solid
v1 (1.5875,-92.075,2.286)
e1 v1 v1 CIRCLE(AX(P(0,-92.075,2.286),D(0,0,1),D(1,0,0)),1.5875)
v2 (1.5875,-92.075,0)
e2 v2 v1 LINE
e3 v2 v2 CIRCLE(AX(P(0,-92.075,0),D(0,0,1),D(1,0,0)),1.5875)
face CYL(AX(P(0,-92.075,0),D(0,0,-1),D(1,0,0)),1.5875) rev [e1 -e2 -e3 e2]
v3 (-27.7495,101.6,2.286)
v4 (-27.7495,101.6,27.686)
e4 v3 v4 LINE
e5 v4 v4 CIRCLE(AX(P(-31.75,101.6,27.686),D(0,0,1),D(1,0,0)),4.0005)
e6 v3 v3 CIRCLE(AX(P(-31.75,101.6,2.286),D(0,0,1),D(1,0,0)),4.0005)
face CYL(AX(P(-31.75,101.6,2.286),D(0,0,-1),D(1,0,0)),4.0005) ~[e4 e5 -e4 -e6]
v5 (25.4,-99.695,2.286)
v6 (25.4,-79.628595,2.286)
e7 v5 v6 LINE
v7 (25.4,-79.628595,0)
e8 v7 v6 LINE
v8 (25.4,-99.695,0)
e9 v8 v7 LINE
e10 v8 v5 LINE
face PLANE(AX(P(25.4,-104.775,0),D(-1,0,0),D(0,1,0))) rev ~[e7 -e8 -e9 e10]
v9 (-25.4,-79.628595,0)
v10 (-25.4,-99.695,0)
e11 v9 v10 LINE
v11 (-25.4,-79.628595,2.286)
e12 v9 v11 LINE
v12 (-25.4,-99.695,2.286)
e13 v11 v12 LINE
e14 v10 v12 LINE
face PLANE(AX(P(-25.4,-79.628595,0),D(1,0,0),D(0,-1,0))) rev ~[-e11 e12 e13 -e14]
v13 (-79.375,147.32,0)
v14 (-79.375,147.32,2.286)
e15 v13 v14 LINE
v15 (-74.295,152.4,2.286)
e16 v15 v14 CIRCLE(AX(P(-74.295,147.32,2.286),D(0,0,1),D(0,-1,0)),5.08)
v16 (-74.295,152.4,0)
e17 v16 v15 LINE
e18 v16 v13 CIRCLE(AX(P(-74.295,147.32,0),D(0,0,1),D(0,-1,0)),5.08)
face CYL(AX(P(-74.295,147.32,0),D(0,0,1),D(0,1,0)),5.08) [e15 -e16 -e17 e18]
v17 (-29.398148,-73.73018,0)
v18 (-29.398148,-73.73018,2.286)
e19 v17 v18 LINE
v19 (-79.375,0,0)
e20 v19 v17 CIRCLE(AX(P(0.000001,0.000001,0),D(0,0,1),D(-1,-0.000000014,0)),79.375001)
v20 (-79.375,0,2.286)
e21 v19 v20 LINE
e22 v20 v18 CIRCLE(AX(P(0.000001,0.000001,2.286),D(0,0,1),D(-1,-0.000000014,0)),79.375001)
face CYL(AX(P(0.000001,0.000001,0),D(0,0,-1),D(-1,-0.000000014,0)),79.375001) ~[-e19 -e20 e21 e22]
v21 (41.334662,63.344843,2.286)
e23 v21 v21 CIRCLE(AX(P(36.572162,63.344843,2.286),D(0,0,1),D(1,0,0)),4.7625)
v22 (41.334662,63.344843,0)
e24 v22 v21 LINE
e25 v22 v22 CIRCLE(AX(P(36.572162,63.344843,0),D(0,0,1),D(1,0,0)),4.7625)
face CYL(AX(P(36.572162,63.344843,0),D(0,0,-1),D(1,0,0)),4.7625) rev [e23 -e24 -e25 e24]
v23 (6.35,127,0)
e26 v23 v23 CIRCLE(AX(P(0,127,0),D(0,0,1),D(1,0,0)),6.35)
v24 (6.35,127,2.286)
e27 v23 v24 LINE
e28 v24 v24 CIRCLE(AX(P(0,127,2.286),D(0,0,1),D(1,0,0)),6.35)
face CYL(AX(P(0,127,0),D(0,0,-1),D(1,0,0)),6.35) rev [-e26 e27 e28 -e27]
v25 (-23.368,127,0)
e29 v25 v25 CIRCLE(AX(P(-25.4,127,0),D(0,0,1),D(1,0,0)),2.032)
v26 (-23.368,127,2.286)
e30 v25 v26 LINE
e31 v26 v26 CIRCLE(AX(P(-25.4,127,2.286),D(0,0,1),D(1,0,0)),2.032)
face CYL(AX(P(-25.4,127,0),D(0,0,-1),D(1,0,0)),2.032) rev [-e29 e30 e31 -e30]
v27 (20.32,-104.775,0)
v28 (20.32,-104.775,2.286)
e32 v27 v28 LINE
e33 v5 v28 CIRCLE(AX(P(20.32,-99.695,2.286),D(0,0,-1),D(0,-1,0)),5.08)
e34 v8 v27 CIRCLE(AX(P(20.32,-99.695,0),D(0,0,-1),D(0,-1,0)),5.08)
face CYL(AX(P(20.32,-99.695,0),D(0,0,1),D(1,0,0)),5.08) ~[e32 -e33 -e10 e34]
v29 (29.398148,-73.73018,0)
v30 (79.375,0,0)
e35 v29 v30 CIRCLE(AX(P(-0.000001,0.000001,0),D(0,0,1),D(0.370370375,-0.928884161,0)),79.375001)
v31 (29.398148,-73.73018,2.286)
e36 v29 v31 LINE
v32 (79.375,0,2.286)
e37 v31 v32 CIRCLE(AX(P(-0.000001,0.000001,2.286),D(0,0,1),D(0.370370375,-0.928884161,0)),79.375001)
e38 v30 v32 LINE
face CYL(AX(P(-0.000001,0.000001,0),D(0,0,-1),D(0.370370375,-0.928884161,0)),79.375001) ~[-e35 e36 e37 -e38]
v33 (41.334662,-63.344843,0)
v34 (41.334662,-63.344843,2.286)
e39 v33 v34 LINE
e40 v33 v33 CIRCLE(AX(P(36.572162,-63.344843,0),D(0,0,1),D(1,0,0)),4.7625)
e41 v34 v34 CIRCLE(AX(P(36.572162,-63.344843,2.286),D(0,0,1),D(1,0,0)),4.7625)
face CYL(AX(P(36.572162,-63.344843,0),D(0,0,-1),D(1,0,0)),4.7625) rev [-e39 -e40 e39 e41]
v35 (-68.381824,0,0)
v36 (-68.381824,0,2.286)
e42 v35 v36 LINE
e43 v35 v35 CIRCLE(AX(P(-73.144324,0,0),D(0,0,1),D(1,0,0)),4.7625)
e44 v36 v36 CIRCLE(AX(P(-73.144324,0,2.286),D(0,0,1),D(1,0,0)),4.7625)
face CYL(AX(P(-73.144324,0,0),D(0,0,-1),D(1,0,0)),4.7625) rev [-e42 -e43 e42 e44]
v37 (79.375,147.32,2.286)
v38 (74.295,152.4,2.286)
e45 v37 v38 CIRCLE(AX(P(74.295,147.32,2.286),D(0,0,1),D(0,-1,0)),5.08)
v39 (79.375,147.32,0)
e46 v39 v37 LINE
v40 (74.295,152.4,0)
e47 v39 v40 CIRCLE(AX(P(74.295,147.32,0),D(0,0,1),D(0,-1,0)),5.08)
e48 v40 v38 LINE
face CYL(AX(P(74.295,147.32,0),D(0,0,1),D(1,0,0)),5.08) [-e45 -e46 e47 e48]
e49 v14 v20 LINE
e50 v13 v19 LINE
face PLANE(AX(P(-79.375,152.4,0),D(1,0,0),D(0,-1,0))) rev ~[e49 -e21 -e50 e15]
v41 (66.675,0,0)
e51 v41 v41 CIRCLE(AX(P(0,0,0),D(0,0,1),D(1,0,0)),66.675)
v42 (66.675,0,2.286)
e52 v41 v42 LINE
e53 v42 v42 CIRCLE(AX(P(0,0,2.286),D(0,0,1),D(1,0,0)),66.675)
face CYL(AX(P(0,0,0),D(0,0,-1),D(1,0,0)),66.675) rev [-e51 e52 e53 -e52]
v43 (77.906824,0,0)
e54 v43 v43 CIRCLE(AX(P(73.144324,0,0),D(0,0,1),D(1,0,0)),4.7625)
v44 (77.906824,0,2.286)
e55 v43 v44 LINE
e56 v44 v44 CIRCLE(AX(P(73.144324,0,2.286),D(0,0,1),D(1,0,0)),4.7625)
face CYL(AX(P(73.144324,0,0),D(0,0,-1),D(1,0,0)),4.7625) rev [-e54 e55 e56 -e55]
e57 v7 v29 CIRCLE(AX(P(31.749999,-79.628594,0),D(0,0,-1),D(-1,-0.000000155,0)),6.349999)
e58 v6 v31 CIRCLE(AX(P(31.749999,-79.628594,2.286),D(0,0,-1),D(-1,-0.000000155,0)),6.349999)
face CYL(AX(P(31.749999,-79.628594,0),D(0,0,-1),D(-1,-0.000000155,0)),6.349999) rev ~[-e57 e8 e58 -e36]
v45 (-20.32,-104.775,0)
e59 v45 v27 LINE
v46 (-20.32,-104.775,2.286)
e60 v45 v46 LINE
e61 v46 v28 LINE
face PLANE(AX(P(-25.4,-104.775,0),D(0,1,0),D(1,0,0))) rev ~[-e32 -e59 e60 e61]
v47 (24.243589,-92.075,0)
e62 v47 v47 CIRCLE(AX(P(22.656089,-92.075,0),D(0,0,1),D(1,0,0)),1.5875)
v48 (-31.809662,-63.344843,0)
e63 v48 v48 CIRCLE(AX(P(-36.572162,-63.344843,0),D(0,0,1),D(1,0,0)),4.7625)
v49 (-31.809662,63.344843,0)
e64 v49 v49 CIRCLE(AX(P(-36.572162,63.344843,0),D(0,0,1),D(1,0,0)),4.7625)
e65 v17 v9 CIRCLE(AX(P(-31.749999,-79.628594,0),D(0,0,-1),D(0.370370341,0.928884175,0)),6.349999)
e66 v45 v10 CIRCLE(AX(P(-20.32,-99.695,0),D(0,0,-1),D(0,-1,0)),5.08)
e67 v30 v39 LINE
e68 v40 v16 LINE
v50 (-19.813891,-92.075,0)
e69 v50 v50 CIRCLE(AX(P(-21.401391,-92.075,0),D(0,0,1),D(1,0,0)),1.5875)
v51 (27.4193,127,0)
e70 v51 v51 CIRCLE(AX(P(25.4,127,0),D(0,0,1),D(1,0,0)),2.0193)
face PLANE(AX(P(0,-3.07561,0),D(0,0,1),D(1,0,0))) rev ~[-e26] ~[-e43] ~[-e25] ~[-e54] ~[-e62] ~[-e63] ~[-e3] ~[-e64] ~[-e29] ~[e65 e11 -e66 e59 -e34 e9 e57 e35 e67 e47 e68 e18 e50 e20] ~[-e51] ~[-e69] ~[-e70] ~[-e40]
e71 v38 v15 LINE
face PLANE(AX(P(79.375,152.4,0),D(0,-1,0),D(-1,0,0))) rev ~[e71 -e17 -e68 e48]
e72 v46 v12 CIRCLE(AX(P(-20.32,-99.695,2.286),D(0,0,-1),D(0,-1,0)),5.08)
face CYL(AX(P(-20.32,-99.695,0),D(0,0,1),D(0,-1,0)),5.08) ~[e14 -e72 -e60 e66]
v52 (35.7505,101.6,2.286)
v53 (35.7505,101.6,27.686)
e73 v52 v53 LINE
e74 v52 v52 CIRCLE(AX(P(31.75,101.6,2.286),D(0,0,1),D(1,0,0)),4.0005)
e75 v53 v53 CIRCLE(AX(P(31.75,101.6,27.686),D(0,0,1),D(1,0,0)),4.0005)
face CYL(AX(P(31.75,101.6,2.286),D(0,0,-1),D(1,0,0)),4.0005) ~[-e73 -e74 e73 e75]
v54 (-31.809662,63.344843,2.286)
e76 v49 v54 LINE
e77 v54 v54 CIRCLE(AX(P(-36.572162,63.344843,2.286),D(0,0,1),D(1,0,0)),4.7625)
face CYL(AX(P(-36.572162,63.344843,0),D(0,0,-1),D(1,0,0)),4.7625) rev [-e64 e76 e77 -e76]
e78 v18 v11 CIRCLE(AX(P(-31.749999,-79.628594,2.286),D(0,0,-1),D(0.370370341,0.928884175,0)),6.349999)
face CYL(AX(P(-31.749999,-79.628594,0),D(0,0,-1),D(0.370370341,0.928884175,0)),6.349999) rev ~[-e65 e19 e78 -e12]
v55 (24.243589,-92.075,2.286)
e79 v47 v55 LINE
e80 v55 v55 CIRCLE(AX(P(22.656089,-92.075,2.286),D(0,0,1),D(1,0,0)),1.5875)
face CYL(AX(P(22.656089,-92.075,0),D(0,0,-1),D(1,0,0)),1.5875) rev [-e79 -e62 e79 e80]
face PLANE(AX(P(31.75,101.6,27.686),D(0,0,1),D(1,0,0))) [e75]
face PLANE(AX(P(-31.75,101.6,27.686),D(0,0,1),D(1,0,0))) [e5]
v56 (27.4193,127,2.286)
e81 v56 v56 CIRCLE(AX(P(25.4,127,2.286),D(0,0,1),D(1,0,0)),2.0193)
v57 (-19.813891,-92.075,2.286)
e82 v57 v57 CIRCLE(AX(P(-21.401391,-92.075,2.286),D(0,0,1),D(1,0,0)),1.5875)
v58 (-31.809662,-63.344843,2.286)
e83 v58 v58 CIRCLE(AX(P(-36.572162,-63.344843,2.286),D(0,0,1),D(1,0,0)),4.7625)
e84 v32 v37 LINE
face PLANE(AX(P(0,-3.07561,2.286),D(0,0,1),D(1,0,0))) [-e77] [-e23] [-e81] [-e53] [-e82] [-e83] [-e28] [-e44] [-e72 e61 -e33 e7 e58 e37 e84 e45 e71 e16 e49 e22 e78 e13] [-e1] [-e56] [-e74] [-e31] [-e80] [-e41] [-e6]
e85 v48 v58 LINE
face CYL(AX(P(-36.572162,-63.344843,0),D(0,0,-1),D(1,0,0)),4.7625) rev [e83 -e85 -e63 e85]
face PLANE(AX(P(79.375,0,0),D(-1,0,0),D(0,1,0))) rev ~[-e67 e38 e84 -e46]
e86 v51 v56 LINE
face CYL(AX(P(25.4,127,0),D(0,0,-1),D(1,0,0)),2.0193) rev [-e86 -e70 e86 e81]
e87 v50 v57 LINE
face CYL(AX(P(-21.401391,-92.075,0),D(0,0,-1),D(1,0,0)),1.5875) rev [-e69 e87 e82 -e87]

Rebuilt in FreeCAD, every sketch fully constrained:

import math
import FreeCAD as App
import Part
import Sketcher

V = App.Vector
Q = App.Units.Quantity


def edges_at(feature, points):
    """Names of the edges that pass closest to the given points."""
    edges = feature.Shape.Edges
    near = lambda p: min(range(len(edges)), key=lambda i: edges[i].distToShape(Part.Vertex(*p))[0])
    return sorted({f"Edge{near(p) + 1}" for p in points})

doc = App.newDocument("Part")
params = doc.addObject("Spreadsheet::Sheet", "Params")
for row, (alias, value) in enumerate([
    ("sketch1_diameter", "0.5 in"),
    ("sketch1_diameter2", "5.25 in"),
    ("sketch1_diameter3", "0.16 in"),
    ("sketch1_width", "2 in"),
    ("sketch1_height", "6 in"),
    ("pad1_length", "0.09 in"),
    ("fillet_radius", "0.2 in"),
    ("fillet2_radius", "0.2 in"),
    ("sketch2_diameter", "0.315 in"),
    ("pad2_length", "1 in"),
], start=1):
    params.set(f"A{row}", alias)
    params.set(f"B{row}", "=" + value)
    params.setAlias(f"B{row}", alias)

body = doc.addObject("PartDesign::Body", "Body")

# Sketch on XY plane
sketch1 = body.newObject("Sketcher::SketchObject", "Sketch")
sketch1.AttachmentSupport = (doc.getObject("XY_Plane"), [""])
sketch1.MapMode = "FlatFace"
sketch1.addGeometry([
    Part.ArcOfCircle(Part.Circle(V(0, 0, 0), V(0, 0, 1), 79.4), math.radians(-68), math.radians(0)),  # 0
    Part.LineSegment(V(79.4, 0, 0), V(79.4, 152.4, 0)),  # 1
    Part.LineSegment(V(79.4, 152.4, 0), V(-79.4, 152.4, 0)),  # 2
    Part.LineSegment(V(-79.4, 152.4, 0), V(-79.4, 0, 0)),  # 3
    Part.ArcOfCircle(Part.Circle(V(0, 0, 0), V(0, 0, 1), 79.4), math.radians(-180), math.radians(-112)),  # 4
    Part.ArcOfCircle(Part.Circle(V(-31.7, -79.6, 0), V(0, 0, 1), 6.3), math.radians(0), math.radians(68)),  # 5
    Part.LineSegment(V(-25.4, -79.6, 0), V(-25.4, -104.8, 0)),  # 6
    Part.LineSegment(V(-25.4, -104.8, 0), V(25.4, -104.8, 0)),  # 7
    Part.LineSegment(V(25.4, -104.8, 0), V(25.4, -79.6, 0)),  # 8
    Part.ArcOfCircle(Part.Circle(V(31.7, -79.6, 0), V(0, 0, 1), 6.3), math.radians(112), math.radians(180)),  # 9
    Part.Circle(V(-21.4, -92.1, 0), V(0, 0, 1), 1.6),  # 10
    Part.Circle(V(-36.6, -63.3, 0), V(0, 0, 1), 4.8),  # 11
    Part.Circle(V(-73.1, 0, 0), V(0, 0, 1), 4.8),  # 12
    Part.Circle(V(0, -92.1, 0), V(0, 0, 1), 1.6),  # 13
    Part.Circle(V(22.7, -92.1, 0), V(0, 0, 1), 1.6),  # 14
    Part.Circle(V(36.6, -63.3, 0), V(0, 0, 1), 4.8),  # 15
    Part.Circle(V(0, 0, 0), V(0, 0, 1), 66.7),  # 16
    Part.Circle(V(73.1, 0, 0), V(0, 0, 1), 4.8),  # 17
    Part.Circle(V(-36.6, 63.3, 0), V(0, 0, 1), 4.8),  # 18
    Part.Circle(V(-25.4, 127, 0), V(0, 0, 1), 2),  # 19
    Part.Circle(V(36.6, 63.3, 0), V(0, 0, 1), 4.8),  # 20
    Part.Circle(V(0, 127, 0), V(0, 0, 1), 6.3),  # 21
    Part.Circle(V(25.4, 127, 0), V(0, 0, 1), 2),  # 22
], False)
sketch1.addConstraint([
    Sketcher.Constraint("Tangent", 0, 2, 1, 1),
    Sketcher.Constraint("Coincident", 1, 2, 2, 1),
    Sketcher.Constraint("Coincident", 2, 2, 3, 1),
    Sketcher.Constraint("Tangent", 3, 2, 4, 1),
    Sketcher.Constraint("Tangent", 4, 2, 5, 2),
    Sketcher.Constraint("Tangent", 5, 1, 6, 1),
    Sketcher.Constraint("Coincident", 6, 2, 7, 1),
    Sketcher.Constraint("Coincident", 7, 2, 8, 1),
    Sketcher.Constraint("Tangent", 8, 2, 9, 2),
    Sketcher.Constraint("Tangent", 9, 1, 0, 1),
    Sketcher.Constraint("Vertical", 1),
    Sketcher.Constraint("Horizontal", 2),
    Sketcher.Constraint("Vertical", 3),
    Sketcher.Constraint("Vertical", 6),
    Sketcher.Constraint("Horizontal", 7),
    Sketcher.Constraint("Vertical", 8),
    Sketcher.Constraint("Coincident", 0, 3, -1, 1),
    Sketcher.Constraint("Coincident", 4, 3, -1, 1),
    Sketcher.Constraint("Coincident", 16, 3, -1, 1),
    Sketcher.Constraint("Equal", 0, 4),
    Sketcher.Constraint("Equal", 5, 9),
    Sketcher.Constraint("Equal", 11, 12),
    Sketcher.Constraint("Equal", 10, 13),
    Sketcher.Constraint("Equal", 13, 14),
    Sketcher.Constraint("Equal", 12, 15),
    Sketcher.Constraint("Equal", 15, 17),
    Sketcher.Constraint("Equal", 17, 18),
    Sketcher.Constraint("Equal", 18, 20),
    Sketcher.Constraint("Equal", 9, 21),
    Sketcher.Constraint("Symmetric", 12, 3, 17, 3, -1, 1),
    Sketcher.Constraint("Symmetric", 15, 3, 18, 3, -1, 1),
    Sketcher.Constraint("Symmetric", 11, 3, 20, 3, -1, 1),
    Sketcher.Constraint("Symmetric", 11, 3, 15, 3, -2),
    Sketcher.Constraint("Symmetric", 19, 3, 22, 3, -2),
    Sketcher.Constraint("PointOnObject", 12, 3, -1),
    Sketcher.Constraint("PointOnObject", 13, 3, -2),
    Sketcher.Constraint("PointOnObject", 21, 3, -2),
    Sketcher.Constraint("Horizontal", 5, 3, 9, 3),
    Sketcher.Constraint("Horizontal", 10, 3, 13, 3),
    Sketcher.Constraint("Horizontal", 13, 3, 14, 3),
    Sketcher.Constraint("Horizontal", 19, 3, 21, 3),
    Sketcher.Constraint("Vertical", 19, 3, 5, 1),
    Sketcher.Constraint("Diameter", 21, Q("0.5 in")),
    Sketcher.Constraint("Diameter", 16, Q("5.25 in")),
    Sketcher.Constraint("Diameter", 19, Q("0.16 in")),
    Sketcher.Constraint("DistanceX", 7, 1, 7, 2, Q("2 in")),
    Sketcher.Constraint("DistanceY", 1, 1, 1, 2, Q("6 in")),
    Sketcher.Constraint("Diameter", 10, Q("0.125 in")),
    Sketcher.Constraint("Diameter", 11, Q("0.375 in")),
    Sketcher.Constraint("Diameter", 22, Q("0.159 in")),
    Sketcher.Constraint("DistanceY", -1, 1, 19, 3, Q("5 in")),
    Sketcher.Constraint("Radius", 0, Q("3.125 in")),
    Sketcher.Constraint("DistanceY", 6, 2, 10, 3, Q("0.5 in")),
    Sketcher.Constraint("DistanceY", 10, 3, -1, 1, Q("3.625 in")),
    Sketcher.Constraint("DistanceX", 10, 3, -1, 1, 21.401391),
    Sketcher.Constraint("DistanceX", -1, 1, 14, 3, 22.656089),
    Sketcher.Constraint("DistanceY", 5, 3, 11, 3, 16.283751),
    Sketcher.Constraint("DistanceX", 11, 3, 10, 3, 15.170771),
    Sketcher.Constraint("DistanceX", 12, 3, -1, 1, 73.144324),
])
sketch1.setExpression("Constraints[42]", "Params.sketch1_diameter")
sketch1.setExpression("Constraints[43]", "Params.sketch1_diameter2")
sketch1.setExpression("Constraints[44]", "Params.sketch1_diameter3")
sketch1.setExpression("Constraints[45]", "Params.sketch1_width")
sketch1.setExpression("Constraints[46]", "Params.sketch1_height")
pad1 = body.newObject("PartDesign::Pad", "Pad")
pad1.Profile = sketch1
pad1.setExpression("Length", "Params.pad1_length")
doc.recompute()

fillet = body.newObject("PartDesign::Fillet", "Fillet")
fillet.Base = (pad1, edges_at(pad1, [(-79.375, 152.4, 1.143), (79.375, 152.4, 1.143)]))
fillet.setExpression("Radius", "Params.fillet_radius")
doc.recompute()

fillet2 = body.newObject("PartDesign::Fillet", "Fillet001")
fillet2.Base = (fillet, edges_at(fillet, [(25.4, -104.775, 1.143), (-25.4, -104.775, 1.143)]))
fillet2.setExpression("Radius", "Params.fillet2_radius")

# Sketch on XY plane
sketch2 = body.newObject("Sketcher::SketchObject", "Sketch001")
sketch2.AttachmentSupport = (doc.getObject("XY_Plane"), [""])
sketch2.MapMode = "FlatFace"
sketch2.AttachmentOffset = App.Placement(V(0, 0, 0.09 * 25.4), App.Rotation())
sketch2.addGeometry([
    Part.Circle(V(-31.8, 101.6, 0), V(0, 0, 1), 4),
    Part.Circle(V(31.8, 101.6, 0), V(0, 0, 1), 4),
], False)
sketch2.addConstraint([
    Sketcher.Constraint("Equal", 0, 1),
    Sketcher.Constraint("Symmetric", 0, 3, 1, 3, -2),
    Sketcher.Constraint("Diameter", 0, Q("0.315 in")),
    Sketcher.Constraint("DistanceY", -1, 1, 0, 3, Q("4 in")),
    Sketcher.Constraint("DistanceX", 0, 3, 1, 3, Q("2.5 in")),
])
sketch2.setExpression("Constraints[2]", "Params.sketch2_diameter")
pad2 = body.newObject("PartDesign::Pad", "Pad001")
pad2.Profile = sketch2
pad2.setExpression("Length", "Params.pad2_length")

doc.recompute()
